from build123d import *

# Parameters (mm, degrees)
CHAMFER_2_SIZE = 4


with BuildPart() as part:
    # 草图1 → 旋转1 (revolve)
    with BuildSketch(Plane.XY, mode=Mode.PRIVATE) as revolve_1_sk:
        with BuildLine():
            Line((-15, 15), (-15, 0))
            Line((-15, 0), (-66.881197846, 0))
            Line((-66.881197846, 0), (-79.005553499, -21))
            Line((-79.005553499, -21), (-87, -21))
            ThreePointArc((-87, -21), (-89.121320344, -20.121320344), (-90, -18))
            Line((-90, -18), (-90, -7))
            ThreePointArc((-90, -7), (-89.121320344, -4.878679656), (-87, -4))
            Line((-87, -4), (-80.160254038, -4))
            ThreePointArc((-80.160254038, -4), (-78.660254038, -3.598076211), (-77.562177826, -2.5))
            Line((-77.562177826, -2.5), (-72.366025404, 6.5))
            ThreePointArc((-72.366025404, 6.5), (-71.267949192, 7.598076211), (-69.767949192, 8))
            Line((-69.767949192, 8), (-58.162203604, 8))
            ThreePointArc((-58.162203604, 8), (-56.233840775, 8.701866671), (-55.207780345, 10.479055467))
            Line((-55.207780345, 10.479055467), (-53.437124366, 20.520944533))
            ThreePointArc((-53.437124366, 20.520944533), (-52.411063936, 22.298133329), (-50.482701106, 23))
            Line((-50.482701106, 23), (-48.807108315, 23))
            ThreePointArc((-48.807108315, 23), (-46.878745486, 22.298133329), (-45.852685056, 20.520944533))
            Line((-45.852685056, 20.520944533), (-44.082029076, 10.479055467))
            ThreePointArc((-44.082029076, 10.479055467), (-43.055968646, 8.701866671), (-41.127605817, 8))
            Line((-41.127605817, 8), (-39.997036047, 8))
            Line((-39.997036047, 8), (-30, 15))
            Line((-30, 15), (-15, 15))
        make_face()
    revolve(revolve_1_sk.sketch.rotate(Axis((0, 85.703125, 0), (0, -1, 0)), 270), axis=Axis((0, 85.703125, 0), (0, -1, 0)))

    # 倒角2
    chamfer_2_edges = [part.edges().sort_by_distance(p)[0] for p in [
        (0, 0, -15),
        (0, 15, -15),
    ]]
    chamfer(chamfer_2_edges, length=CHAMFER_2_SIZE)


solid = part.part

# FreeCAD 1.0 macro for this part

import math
import FreeCAD as App
import Part
import Sketcher
Q = App.Units.Quantity


def edges_at(feature, points):
    """Names of the edges that pass closest to the given points."""
    edges = feature.Shape.Edges
    near = lambda p: min(range(len(edges)), key=lambda i: edges[i].distToShape(Part.Vertex(*p))[0])
    return sorted({f"Edge{near(p) + 1}" for p in points})

doc = App.newDocument("Part")
body = doc.addObject("PartDesign::Body", "Body")

sketch1 = body.newObject("Sketcher::SketchObject", "Sketch")
sketch1.AttachmentSupport = (doc.getObject("XY_Plane"), [""])
sketch1.MapMode = "FlatFace"
sketch1.addGeometry(Part.LineSegment(App.Vector(-15, 0, 0), App.Vector(-15, 15, 0)), False)
sketch1.addGeometry(Part.LineSegment(App.Vector(-15, 15, 0), App.Vector(-30, 15, 0)), False)
sketch1.addGeometry(Part.LineSegment(App.Vector(-30, 15, 0), App.Vector(-40, 8, 0)), False)
sketch1.addGeometry(Part.LineSegment(App.Vector(-40, 8, 0), App.Vector(-41.1, 8, 0)), False)
sketch1.addGeometry(Part.ArcOfCircle(Part.Circle(App.Vector(-41.1, 11, 0), App.Vector(0, 0, 1), 3), math.radians(-170), math.radians(-90)), False)
sketch1.addGeometry(Part.LineSegment(App.Vector(-44.1, 10.5, 0), App.Vector(-45.9, 20.5, 0)), False)
sketch1.addGeometry(Part.ArcOfCircle(Part.Circle(App.Vector(-48.8, 20, 0), App.Vector(0, 0, 1), 3), math.radians(10), math.radians(90)), False)
sketch1.addGeometry(Part.LineSegment(App.Vector(-48.8, 23, 0), App.Vector(-50.5, 23, 0)), False)
sketch1.addGeometry(Part.ArcOfCircle(Part.Circle(App.Vector(-50.5, 20, 0), App.Vector(0, 0, 1), 3), math.radians(90), math.radians(170)), False)
sketch1.addGeometry(Part.LineSegment(App.Vector(-53.4, 20.5, 0), App.Vector(-55.2, 10.5, 0)), False)
sketch1.addGeometry(Part.ArcOfCircle(Part.Circle(App.Vector(-58.2, 11, 0), App.Vector(0, 0, 1), 3), math.radians(-90), math.radians(-10)), False)
sketch1.addGeometry(Part.LineSegment(App.Vector(-58.2, 8, 0), App.Vector(-69.8, 8, 0)), False)
sketch1.addGeometry(Part.ArcOfCircle(Part.Circle(App.Vector(-69.8, 5, 0), App.Vector(0, 0, 1), 3), math.radians(90), math.radians(150)), False)
sketch1.addGeometry(Part.LineSegment(App.Vector(-72.4, 6.5, 0), App.Vector(-77.6, -2.5, 0)), False)
sketch1.addGeometry(Part.ArcOfCircle(Part.Circle(App.Vector(-80.2, -1, 0), App.Vector(0, 0, 1), 3), math.radians(-90), math.radians(-30)), False)
sketch1.addGeometry(Part.LineSegment(App.Vector(-80.2, -4, 0), App.Vector(-87, -4, 0)), False)
sketch1.addGeometry(Part.ArcOfCircle(Part.Circle(App.Vector(-87, -7, 0), App.Vector(0, 0, 1), 3), math.radians(90), math.radians(180)), False)
sketch1.addGeometry(Part.LineSegment(App.Vector(-90, -7, 0), App.Vector(-90, -18, 0)), False)
sketch1.addGeometry(Part.ArcOfCircle(Part.Circle(App.Vector(-87, -18, 0), App.Vector(0, 0, 1), 3), math.radians(180), math.radians(270)), False)
sketch1.addGeometry(Part.LineSegment(App.Vector(-87, -21, 0), App.Vector(-79, -21, 0)), False)
sketch1.addGeometry(Part.LineSegment(App.Vector(-79, -21, 0), App.Vector(-66.9, 0, 0)), False)
sketch1.addGeometry(Part.LineSegment(App.Vector(-66.9, 0, 0), App.Vector(-15, 0, 0)), False)
sketch1.addConstraint(Sketcher.Constraint("Coincident", 0, 2, 1, 1))
sketch1.addConstraint(Sketcher.Constraint("Coincident", 1, 2, 2, 1))
sketch1.addConstraint(Sketcher.Constraint("Coincident", 2, 2, 3, 1))
sketch1.addConstraint(Sketcher.Constraint("Tangent", 3, 2, 4, 2))
sketch1.addConstraint(Sketcher.Constraint("Tangent", 4, 1, 5, 1))
sketch1.addConstraint(Sketcher.Constraint("Tangent", 5, 2, 6, 1))
sketch1.addConstraint(Sketcher.Constraint("Tangent", 6, 2, 7, 1))
sketch1.addConstraint(Sketcher.Constraint("Tangent", 7, 2, 8, 1))
sketch1.addConstraint(Sketcher.Constraint("Tangent", 8, 2, 9, 1))
sketch1.addConstraint(Sketcher.Constraint("Tangent", 9, 2, 10, 2))
sketch1.addConstraint(Sketcher.Constraint("Tangent", 10, 1, 11, 1))
sketch1.addConstraint(Sketcher.Constraint("Tangent", 11, 2, 12, 1))
sketch1.addConstraint(Sketcher.Constraint("Tangent", 12, 2, 13, 1))
sketch1.addConstraint(Sketcher.Constraint("Tangent", 13, 2, 14, 2))
sketch1.addConstraint(Sketcher.Constraint("Tangent", 14, 1, 15, 1))
sketch1.addConstraint(Sketcher.Constraint("Tangent", 15, 2, 16, 1))
sketch1.addConstraint(Sketcher.Constraint("Tangent", 16, 2, 17, 1))
sketch1.addConstraint(Sketcher.Constraint("Tangent", 17, 2, 18, 1))
sketch1.addConstraint(Sketcher.Constraint("Tangent", 18, 2, 19, 1))
sketch1.addConstraint(Sketcher.Constraint("Coincident", 19, 2, 20, 1))
sketch1.addConstraint(Sketcher.Constraint("Coincident", 20, 2, 21, 1))
sketch1.addConstraint(Sketcher.Constraint("Coincident", 21, 2, 0, 1))
sketch1.addConstraint(Sketcher.Constraint("Vertical", 0))
sketch1.addConstraint(Sketcher.Constraint("Horizontal", 1))
sketch1.addConstraint(Sketcher.Constraint("Horizontal", 3))
sketch1.addConstraint(Sketcher.Constraint("Horizontal", 7))
sketch1.addConstraint(Sketcher.Constraint("Horizontal", 11))
sketch1.addConstraint(Sketcher.Constraint("Horizontal", 15))
sketch1.addConstraint(Sketcher.Constraint("Vertical", 17))
sketch1.addConstraint(Sketcher.Constraint("Horizontal", 19))
sketch1.addConstraint(Sketcher.Constraint("Horizontal", 21))
sketch1.addConstraint(Sketcher.Constraint("Equal", 4, 6))
sketch1.addConstraint(Sketcher.Constraint("Equal", 6, 8))
sketch1.addConstraint(Sketcher.Constraint("Equal", 8, 10))
sketch1.addConstraint(Sketcher.Constraint("Equal", 10, 12))
sketch1.addConstraint(Sketcher.Constraint("Equal", 12, 14))
sketch1.addConstraint(Sketcher.Constraint("Equal", 14, 16))
sketch1.addConstraint(Sketcher.Constraint("Equal", 16, 18))
sketch1.addConstraint(Sketcher.Constraint("PointOnObject", 20, 2, -1))
sketch1.addConstraint(Sketcher.Constraint("Parallel", 13, 20))
sketch1.addConstraint(Sketcher.Constraint("Horizontal", 4, 3, 10, 3))
sketch1.addConstraint(Sketcher.Constraint("Horizontal", 5, 2, 8, 2))
sketch1.addConstraint(Sketcher.Constraint("Equal", 1, 0))
sketch1.addConstraint(Sketcher.Constraint("Radius", 4, Q("3 mm")))
sketch1.addConstraint(Sketcher.Constraint("DistanceX", 1, 2, 1, 1, Q("15 mm")))
sketch1.addConstraint(Sketcher.Constraint("DistanceY", 17, 2, 17, 1, Q("11 mm")))
sketch1.addConstraint(Sketcher.Constraint("Angle", 2, Q("-145 deg")))
sketch1.addConstraint(Sketcher.Constraint("Angle", 5, Q("100 deg")))
sketch1.addConstraint(Sketcher.Constraint("Angle", 13, Q("-120 deg")))
sketch1.addConstraint(Sketcher.Constraint("DistanceY", -1, 1, 4, 3, Q("11 mm")))
sketch1.addConstraint(Sketcher.Constraint("DistanceY", -1, 1, 6, 3, Q("20 mm")))
sketch1.addConstraint(Sketcher.Constraint("DistanceY", 14, 3, -1, 1, Q("1 mm")))
sketch1.addConstraint(Sketcher.Constraint("DistanceX", 16, 3, -1, 1, Q("87 mm")))
sketch1.addConstraint(Sketcher.Constraint("DistanceX", 0, 2, -1, 1, Q("15 mm")))
sketch1.addConstraint(Sketcher.Constraint("DistanceX", 3, 2, 3, 1, Q("1.13057 mm")))
sketch1.addConstraint(Sketcher.Constraint("DistanceX", 8, 3, -1, 1, Q("50.482701 mm")))
sketch1.addConstraint(Sketcher.Constraint("DistanceX", 14, 1, 19, 2, Q("1.154701 mm")))
sketch1.addConstraint(Sketcher.Constraint("DistanceX", 11, 2, 11, 1, Q("11.605746 mm")))
revolution = body.newObject("PartDesign::Revolution", "Revolution")
revolution.Profile = sketch1
revolution.ReferenceAxis = (sketch1, ["V_Axis"])
revolution.Angle = 360
doc.recompute()

chamfer = body.newObject("PartDesign::Chamfer", "Chamfer")
chamfer.Base = (revolution, edges_at(revolution, [(0, 0, -15), (0, 15, -15)]))
chamfer.Size = 4

doc.recompute()
